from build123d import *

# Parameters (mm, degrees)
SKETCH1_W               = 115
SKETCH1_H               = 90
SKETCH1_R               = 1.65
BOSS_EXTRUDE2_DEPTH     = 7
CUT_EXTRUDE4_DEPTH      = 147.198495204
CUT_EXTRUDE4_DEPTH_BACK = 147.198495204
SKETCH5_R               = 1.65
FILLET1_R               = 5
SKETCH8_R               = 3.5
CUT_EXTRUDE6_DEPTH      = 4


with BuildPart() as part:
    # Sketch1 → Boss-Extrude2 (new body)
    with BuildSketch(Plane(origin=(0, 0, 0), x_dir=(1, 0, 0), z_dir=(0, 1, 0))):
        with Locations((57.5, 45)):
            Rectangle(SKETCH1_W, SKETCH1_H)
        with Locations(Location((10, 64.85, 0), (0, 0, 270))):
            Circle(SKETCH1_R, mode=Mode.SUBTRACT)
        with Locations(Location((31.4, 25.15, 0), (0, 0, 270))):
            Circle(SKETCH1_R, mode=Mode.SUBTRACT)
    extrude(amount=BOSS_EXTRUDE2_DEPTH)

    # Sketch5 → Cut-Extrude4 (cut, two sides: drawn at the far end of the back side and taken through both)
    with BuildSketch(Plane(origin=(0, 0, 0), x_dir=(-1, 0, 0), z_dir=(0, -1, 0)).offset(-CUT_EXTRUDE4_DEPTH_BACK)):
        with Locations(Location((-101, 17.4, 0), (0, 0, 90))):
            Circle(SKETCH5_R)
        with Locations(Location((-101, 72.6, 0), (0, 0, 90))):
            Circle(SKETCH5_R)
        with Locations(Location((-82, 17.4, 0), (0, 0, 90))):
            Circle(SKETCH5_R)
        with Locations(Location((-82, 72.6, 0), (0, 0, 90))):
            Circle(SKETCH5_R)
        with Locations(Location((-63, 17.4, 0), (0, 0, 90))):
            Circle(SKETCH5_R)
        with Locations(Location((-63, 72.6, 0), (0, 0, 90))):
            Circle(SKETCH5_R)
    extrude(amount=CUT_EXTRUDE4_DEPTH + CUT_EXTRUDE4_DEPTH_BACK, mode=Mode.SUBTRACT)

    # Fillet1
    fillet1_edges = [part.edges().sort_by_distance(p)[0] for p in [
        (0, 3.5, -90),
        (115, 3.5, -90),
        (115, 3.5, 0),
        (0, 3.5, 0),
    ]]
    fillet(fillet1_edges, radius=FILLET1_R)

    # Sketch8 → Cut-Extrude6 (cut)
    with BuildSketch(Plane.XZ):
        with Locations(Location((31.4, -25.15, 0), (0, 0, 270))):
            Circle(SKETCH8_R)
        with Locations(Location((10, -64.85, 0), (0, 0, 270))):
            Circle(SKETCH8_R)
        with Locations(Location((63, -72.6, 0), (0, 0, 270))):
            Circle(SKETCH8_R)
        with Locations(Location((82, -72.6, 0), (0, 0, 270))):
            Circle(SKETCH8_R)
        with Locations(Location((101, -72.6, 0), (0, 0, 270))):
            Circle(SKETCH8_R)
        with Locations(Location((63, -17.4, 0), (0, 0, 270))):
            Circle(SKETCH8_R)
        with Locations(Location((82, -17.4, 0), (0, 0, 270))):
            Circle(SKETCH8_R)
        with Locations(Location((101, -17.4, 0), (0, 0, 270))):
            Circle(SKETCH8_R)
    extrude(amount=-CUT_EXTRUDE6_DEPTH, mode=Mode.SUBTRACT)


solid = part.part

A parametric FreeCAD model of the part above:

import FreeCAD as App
import Part
import Sketcher

V = App.Vector
Q = App.Units.Quantity


def edges_at(feature, points):
    """Names of the edges that pass closest to the given points."""
    edges = feature.Shape.Edges
    near = lambda p: min(range(len(edges)), key=lambda i: edges[i].distToShape(Part.Vertex(*p))[0])
    return sorted({f"Edge{near(p) + 1}" for p in points})

doc = App.newDocument("Part")
body = doc.addObject("PartDesign::Body", "Body")

sketch1 = body.newObject("Sketcher::SketchObject", "Sketch")
sketch1.AttachmentSupport = (doc.getObject("XZ_Plane"), [""])
sketch1.MapMode = "FlatFace"
sketch1.addGeometry([
    Part.LineSegment(V(0, -90, 0), V(0, 0, 0)),
    Part.LineSegment(V(0, 0, 0), V(115, 0, 0)),
    Part.LineSegment(V(115, 0, 0), V(115, -90, 0)),
    Part.LineSegment(V(115, -90, 0), V(0, -90, 0)),
    Part.Circle(V(31.4, -25.1, 0), V(0, 0, 1), 1.6),
    Part.Circle(V(10, -64.8, 0), V(0, 0, 1), 1.6),
], False)
sketch1.addConstraint([
    Sketcher.Constraint("Coincident", 0, 2, 1, 1),
    Sketcher.Constraint("Coincident", 1, 2, 2, 1),
    Sketcher.Constraint("Coincident", 2, 2, 3, 1),
    Sketcher.Constraint("Coincident", 3, 2, 0, 1),
    Sketcher.Constraint("Vertical", 0),
    Sketcher.Constraint("Horizontal", 1),
    Sketcher.Constraint("Vertical", 2),
    Sketcher.Constraint("Horizontal", 3),
    Sketcher.Constraint("Coincident", 0, 2, -1, 1),
    Sketcher.Constraint("Equal", 4, 5),
    Sketcher.Constraint("Diameter", 4, Q("3.3 mm")),
    Sketcher.Constraint("DistanceX", 1, 1, 1, 2, Q("115 mm")),
    Sketcher.Constraint("DistanceY", 0, 1, 0, 2, Q("90 mm")),
    Sketcher.Constraint("DistanceX", -1, 1, 5, 3, Q("10 mm")),
    Sketcher.Constraint("DistanceX", -1, 1, 4, 3, Q("31.4 mm")),
    Sketcher.Constraint("DistanceY", 5, 3, 4, 3, Q("39.7 mm")),
    Sketcher.Constraint("DistanceY", 4, 3, -1, 1, Q("25.15 mm")),
])
pad1 = body.newObject("PartDesign::Pad", "Pad")
pad1.Profile = sketch1
pad1.Length = 7
pad1.Reversed = True

sketch2 = body.newObject("Sketcher::SketchObject", "Sketch001")
sketch2.AttachmentSupport = (doc.getObject("XZ_Plane"), [""])
sketch2.MapMode = "FlatFace"
sketch2.addGeometry([
    Part.Circle(V(101, -17.4, 0), V(0, 0, 1), 1.6),
    Part.Circle(V(101, -72.6, 0), V(0, 0, 1), 1.6),
    Part.Circle(V(82, -17.4, 0), V(0, 0, 1), 1.6),
    Part.Circle(V(82, -72.6, 0), V(0, 0, 1), 1.6),
    Part.Circle(V(63, -17.4, 0), V(0, 0, 1), 1.6),
    Part.Circle(V(63, -72.6, 0), V(0, 0, 1), 1.6),
], False)
sketch2.addConstraint([
    Sketcher.Constraint("Equal", 0, 1),
    Sketcher.Constraint("Equal", 1, 2),
    Sketcher.Constraint("Equal", 2, 3),
    Sketcher.Constraint("Equal", 3, 4),
    Sketcher.Constraint("Equal", 4, 5),
    Sketcher.Constraint("Horizontal", 0, 3, 2, 3),
    Sketcher.Constraint("Horizontal", 1, 3, 3, 3),
    Sketcher.Constraint("Horizontal", 2, 3, 4, 3),
    Sketcher.Constraint("Horizontal", 3, 3, 5, 3),
    Sketcher.Constraint("Vertical", 0, 3, 1, 3),
    Sketcher.Constraint("Vertical", 2, 3, 3, 3),
    Sketcher.Constraint("Vertical", 4, 3, 5, 3),
    Sketcher.Constraint("Diameter", 0, Q("3.3 mm")),
    Sketcher.Constraint("DistanceX", -1, 1, 0, 3, Q("101 mm")),
    Sketcher.Constraint("DistanceX", -1, 1, 2, 3, Q("82 mm")),
    Sketcher.Constraint("DistanceX", -1, 1, 4, 3, Q("63 mm")),
    Sketcher.Constraint("DistanceY", 0, 3, -1, 1, Q("17.4 mm")),
    Sketcher.Constraint("DistanceY", 1, 3, -1, 1, Q("72.6 mm")),
])
pocket1 = body.newObject("PartDesign::Pocket", "Pocket")
pocket1.Profile = sketch2
pocket1.Type = "ThroughAll"
pocket1.Midplane = True
doc.recompute()

fillet = body.newObject("PartDesign::Fillet", "Fillet")
fillet.Base = (pocket1, edges_at(pocket1, [
    (0, 3.5, -90),
    (115, 3.5, -90),
    (115, 3.5, 0),
    (0, 3.5, 0),
]))
fillet.Radius = 5

sketch3 = body.newObject("Sketcher::SketchObject", "Sketch002")
sketch3.AttachmentSupport = (doc.getObject("XZ_Plane"), [""])
sketch3.MapMode = "FlatFace"
sketch3.addGeometry([
    Part.Circle(V(31.4, -25.1, 0), V(0, 0, 1), 3.5),
    Part.Circle(V(10, -64.8, 0), V(0, 0, 1), 3.5),
    Part.Circle(V(63, -72.6, 0), V(0, 0, 1), 3.5),
    Part.Circle(V(82, -72.6, 0), V(0, 0, 1), 3.5),
    Part.Circle(V(101, -72.6, 0), V(0, 0, 1), 3.5),
    Part.Circle(V(63, -17.4, 0), V(0, 0, 1), 3.5),
    Part.Circle(V(82, -17.4, 0), V(0, 0, 1), 3.5),
    Part.Circle(V(101, -17.4, 0), V(0, 0, 1), 3.5),
], False)
sketch3.addConstraint([
    Sketcher.Constraint("Equal", 0, 1),
    Sketcher.Constraint("Equal", 1, 2),
    Sketcher.Constraint("Equal", 2, 3),
    Sketcher.Constraint("Equal", 3, 4),
    Sketcher.Constraint("Equal", 4, 5),
    Sketcher.Constraint("Equal", 5, 6),
    Sketcher.Constraint("Equal", 6, 7),
    Sketcher.Constraint("Horizontal", 2, 3, 3, 3),
    Sketcher.Constraint("Horizontal", 3, 3, 4, 3),
    Sketcher.Constraint("Horizontal", 5, 3, 6, 3),
    Sketcher.Constraint("Horizontal", 6, 3, 7, 3),
    Sketcher.Constraint("Vertical", 2, 3, 5, 3),
    Sketcher.Constraint("Vertical", 3, 3, 6, 3),
    Sketcher.Constraint("Vertical", 4, 3, 7, 3),
    Sketcher.Constraint("Diameter", 0, Q("7 mm")),
    Sketcher.Constraint("DistanceX", -1, 1, 1, 3, Q("10 mm")),
    Sketcher.Constraint("DistanceX", -1, 1, 2, 3, Q("63 mm")),
    Sketcher.Constraint("DistanceX", -1, 1, 3, 3, Q("82 mm")),
    Sketcher.Constraint("DistanceX", -1, 1, 4, 3, Q("101 mm")),
    Sketcher.Constraint("DistanceX", -1, 1, 0, 3, Q("31.4 mm")),
    Sketcher.Constraint("DistanceY", 2, 3, -1, 1, Q("72.6 mm")),
    Sketcher.Constraint("DistanceY", 5, 3, -1, 1, Q("17.4 mm")),
    Sketcher.Constraint("DistanceY", 1, 3, 0, 3, Q("39.7 mm")),
    Sketcher.Constraint("DistanceY", 0, 3, -1, 1, Q("25.15 mm")),
])
pocket2 = body.newObject("PartDesign::Pocket", "Pocket001")
pocket2.Profile = sketch3
pocket2.Length = 4

doc.recompute()
